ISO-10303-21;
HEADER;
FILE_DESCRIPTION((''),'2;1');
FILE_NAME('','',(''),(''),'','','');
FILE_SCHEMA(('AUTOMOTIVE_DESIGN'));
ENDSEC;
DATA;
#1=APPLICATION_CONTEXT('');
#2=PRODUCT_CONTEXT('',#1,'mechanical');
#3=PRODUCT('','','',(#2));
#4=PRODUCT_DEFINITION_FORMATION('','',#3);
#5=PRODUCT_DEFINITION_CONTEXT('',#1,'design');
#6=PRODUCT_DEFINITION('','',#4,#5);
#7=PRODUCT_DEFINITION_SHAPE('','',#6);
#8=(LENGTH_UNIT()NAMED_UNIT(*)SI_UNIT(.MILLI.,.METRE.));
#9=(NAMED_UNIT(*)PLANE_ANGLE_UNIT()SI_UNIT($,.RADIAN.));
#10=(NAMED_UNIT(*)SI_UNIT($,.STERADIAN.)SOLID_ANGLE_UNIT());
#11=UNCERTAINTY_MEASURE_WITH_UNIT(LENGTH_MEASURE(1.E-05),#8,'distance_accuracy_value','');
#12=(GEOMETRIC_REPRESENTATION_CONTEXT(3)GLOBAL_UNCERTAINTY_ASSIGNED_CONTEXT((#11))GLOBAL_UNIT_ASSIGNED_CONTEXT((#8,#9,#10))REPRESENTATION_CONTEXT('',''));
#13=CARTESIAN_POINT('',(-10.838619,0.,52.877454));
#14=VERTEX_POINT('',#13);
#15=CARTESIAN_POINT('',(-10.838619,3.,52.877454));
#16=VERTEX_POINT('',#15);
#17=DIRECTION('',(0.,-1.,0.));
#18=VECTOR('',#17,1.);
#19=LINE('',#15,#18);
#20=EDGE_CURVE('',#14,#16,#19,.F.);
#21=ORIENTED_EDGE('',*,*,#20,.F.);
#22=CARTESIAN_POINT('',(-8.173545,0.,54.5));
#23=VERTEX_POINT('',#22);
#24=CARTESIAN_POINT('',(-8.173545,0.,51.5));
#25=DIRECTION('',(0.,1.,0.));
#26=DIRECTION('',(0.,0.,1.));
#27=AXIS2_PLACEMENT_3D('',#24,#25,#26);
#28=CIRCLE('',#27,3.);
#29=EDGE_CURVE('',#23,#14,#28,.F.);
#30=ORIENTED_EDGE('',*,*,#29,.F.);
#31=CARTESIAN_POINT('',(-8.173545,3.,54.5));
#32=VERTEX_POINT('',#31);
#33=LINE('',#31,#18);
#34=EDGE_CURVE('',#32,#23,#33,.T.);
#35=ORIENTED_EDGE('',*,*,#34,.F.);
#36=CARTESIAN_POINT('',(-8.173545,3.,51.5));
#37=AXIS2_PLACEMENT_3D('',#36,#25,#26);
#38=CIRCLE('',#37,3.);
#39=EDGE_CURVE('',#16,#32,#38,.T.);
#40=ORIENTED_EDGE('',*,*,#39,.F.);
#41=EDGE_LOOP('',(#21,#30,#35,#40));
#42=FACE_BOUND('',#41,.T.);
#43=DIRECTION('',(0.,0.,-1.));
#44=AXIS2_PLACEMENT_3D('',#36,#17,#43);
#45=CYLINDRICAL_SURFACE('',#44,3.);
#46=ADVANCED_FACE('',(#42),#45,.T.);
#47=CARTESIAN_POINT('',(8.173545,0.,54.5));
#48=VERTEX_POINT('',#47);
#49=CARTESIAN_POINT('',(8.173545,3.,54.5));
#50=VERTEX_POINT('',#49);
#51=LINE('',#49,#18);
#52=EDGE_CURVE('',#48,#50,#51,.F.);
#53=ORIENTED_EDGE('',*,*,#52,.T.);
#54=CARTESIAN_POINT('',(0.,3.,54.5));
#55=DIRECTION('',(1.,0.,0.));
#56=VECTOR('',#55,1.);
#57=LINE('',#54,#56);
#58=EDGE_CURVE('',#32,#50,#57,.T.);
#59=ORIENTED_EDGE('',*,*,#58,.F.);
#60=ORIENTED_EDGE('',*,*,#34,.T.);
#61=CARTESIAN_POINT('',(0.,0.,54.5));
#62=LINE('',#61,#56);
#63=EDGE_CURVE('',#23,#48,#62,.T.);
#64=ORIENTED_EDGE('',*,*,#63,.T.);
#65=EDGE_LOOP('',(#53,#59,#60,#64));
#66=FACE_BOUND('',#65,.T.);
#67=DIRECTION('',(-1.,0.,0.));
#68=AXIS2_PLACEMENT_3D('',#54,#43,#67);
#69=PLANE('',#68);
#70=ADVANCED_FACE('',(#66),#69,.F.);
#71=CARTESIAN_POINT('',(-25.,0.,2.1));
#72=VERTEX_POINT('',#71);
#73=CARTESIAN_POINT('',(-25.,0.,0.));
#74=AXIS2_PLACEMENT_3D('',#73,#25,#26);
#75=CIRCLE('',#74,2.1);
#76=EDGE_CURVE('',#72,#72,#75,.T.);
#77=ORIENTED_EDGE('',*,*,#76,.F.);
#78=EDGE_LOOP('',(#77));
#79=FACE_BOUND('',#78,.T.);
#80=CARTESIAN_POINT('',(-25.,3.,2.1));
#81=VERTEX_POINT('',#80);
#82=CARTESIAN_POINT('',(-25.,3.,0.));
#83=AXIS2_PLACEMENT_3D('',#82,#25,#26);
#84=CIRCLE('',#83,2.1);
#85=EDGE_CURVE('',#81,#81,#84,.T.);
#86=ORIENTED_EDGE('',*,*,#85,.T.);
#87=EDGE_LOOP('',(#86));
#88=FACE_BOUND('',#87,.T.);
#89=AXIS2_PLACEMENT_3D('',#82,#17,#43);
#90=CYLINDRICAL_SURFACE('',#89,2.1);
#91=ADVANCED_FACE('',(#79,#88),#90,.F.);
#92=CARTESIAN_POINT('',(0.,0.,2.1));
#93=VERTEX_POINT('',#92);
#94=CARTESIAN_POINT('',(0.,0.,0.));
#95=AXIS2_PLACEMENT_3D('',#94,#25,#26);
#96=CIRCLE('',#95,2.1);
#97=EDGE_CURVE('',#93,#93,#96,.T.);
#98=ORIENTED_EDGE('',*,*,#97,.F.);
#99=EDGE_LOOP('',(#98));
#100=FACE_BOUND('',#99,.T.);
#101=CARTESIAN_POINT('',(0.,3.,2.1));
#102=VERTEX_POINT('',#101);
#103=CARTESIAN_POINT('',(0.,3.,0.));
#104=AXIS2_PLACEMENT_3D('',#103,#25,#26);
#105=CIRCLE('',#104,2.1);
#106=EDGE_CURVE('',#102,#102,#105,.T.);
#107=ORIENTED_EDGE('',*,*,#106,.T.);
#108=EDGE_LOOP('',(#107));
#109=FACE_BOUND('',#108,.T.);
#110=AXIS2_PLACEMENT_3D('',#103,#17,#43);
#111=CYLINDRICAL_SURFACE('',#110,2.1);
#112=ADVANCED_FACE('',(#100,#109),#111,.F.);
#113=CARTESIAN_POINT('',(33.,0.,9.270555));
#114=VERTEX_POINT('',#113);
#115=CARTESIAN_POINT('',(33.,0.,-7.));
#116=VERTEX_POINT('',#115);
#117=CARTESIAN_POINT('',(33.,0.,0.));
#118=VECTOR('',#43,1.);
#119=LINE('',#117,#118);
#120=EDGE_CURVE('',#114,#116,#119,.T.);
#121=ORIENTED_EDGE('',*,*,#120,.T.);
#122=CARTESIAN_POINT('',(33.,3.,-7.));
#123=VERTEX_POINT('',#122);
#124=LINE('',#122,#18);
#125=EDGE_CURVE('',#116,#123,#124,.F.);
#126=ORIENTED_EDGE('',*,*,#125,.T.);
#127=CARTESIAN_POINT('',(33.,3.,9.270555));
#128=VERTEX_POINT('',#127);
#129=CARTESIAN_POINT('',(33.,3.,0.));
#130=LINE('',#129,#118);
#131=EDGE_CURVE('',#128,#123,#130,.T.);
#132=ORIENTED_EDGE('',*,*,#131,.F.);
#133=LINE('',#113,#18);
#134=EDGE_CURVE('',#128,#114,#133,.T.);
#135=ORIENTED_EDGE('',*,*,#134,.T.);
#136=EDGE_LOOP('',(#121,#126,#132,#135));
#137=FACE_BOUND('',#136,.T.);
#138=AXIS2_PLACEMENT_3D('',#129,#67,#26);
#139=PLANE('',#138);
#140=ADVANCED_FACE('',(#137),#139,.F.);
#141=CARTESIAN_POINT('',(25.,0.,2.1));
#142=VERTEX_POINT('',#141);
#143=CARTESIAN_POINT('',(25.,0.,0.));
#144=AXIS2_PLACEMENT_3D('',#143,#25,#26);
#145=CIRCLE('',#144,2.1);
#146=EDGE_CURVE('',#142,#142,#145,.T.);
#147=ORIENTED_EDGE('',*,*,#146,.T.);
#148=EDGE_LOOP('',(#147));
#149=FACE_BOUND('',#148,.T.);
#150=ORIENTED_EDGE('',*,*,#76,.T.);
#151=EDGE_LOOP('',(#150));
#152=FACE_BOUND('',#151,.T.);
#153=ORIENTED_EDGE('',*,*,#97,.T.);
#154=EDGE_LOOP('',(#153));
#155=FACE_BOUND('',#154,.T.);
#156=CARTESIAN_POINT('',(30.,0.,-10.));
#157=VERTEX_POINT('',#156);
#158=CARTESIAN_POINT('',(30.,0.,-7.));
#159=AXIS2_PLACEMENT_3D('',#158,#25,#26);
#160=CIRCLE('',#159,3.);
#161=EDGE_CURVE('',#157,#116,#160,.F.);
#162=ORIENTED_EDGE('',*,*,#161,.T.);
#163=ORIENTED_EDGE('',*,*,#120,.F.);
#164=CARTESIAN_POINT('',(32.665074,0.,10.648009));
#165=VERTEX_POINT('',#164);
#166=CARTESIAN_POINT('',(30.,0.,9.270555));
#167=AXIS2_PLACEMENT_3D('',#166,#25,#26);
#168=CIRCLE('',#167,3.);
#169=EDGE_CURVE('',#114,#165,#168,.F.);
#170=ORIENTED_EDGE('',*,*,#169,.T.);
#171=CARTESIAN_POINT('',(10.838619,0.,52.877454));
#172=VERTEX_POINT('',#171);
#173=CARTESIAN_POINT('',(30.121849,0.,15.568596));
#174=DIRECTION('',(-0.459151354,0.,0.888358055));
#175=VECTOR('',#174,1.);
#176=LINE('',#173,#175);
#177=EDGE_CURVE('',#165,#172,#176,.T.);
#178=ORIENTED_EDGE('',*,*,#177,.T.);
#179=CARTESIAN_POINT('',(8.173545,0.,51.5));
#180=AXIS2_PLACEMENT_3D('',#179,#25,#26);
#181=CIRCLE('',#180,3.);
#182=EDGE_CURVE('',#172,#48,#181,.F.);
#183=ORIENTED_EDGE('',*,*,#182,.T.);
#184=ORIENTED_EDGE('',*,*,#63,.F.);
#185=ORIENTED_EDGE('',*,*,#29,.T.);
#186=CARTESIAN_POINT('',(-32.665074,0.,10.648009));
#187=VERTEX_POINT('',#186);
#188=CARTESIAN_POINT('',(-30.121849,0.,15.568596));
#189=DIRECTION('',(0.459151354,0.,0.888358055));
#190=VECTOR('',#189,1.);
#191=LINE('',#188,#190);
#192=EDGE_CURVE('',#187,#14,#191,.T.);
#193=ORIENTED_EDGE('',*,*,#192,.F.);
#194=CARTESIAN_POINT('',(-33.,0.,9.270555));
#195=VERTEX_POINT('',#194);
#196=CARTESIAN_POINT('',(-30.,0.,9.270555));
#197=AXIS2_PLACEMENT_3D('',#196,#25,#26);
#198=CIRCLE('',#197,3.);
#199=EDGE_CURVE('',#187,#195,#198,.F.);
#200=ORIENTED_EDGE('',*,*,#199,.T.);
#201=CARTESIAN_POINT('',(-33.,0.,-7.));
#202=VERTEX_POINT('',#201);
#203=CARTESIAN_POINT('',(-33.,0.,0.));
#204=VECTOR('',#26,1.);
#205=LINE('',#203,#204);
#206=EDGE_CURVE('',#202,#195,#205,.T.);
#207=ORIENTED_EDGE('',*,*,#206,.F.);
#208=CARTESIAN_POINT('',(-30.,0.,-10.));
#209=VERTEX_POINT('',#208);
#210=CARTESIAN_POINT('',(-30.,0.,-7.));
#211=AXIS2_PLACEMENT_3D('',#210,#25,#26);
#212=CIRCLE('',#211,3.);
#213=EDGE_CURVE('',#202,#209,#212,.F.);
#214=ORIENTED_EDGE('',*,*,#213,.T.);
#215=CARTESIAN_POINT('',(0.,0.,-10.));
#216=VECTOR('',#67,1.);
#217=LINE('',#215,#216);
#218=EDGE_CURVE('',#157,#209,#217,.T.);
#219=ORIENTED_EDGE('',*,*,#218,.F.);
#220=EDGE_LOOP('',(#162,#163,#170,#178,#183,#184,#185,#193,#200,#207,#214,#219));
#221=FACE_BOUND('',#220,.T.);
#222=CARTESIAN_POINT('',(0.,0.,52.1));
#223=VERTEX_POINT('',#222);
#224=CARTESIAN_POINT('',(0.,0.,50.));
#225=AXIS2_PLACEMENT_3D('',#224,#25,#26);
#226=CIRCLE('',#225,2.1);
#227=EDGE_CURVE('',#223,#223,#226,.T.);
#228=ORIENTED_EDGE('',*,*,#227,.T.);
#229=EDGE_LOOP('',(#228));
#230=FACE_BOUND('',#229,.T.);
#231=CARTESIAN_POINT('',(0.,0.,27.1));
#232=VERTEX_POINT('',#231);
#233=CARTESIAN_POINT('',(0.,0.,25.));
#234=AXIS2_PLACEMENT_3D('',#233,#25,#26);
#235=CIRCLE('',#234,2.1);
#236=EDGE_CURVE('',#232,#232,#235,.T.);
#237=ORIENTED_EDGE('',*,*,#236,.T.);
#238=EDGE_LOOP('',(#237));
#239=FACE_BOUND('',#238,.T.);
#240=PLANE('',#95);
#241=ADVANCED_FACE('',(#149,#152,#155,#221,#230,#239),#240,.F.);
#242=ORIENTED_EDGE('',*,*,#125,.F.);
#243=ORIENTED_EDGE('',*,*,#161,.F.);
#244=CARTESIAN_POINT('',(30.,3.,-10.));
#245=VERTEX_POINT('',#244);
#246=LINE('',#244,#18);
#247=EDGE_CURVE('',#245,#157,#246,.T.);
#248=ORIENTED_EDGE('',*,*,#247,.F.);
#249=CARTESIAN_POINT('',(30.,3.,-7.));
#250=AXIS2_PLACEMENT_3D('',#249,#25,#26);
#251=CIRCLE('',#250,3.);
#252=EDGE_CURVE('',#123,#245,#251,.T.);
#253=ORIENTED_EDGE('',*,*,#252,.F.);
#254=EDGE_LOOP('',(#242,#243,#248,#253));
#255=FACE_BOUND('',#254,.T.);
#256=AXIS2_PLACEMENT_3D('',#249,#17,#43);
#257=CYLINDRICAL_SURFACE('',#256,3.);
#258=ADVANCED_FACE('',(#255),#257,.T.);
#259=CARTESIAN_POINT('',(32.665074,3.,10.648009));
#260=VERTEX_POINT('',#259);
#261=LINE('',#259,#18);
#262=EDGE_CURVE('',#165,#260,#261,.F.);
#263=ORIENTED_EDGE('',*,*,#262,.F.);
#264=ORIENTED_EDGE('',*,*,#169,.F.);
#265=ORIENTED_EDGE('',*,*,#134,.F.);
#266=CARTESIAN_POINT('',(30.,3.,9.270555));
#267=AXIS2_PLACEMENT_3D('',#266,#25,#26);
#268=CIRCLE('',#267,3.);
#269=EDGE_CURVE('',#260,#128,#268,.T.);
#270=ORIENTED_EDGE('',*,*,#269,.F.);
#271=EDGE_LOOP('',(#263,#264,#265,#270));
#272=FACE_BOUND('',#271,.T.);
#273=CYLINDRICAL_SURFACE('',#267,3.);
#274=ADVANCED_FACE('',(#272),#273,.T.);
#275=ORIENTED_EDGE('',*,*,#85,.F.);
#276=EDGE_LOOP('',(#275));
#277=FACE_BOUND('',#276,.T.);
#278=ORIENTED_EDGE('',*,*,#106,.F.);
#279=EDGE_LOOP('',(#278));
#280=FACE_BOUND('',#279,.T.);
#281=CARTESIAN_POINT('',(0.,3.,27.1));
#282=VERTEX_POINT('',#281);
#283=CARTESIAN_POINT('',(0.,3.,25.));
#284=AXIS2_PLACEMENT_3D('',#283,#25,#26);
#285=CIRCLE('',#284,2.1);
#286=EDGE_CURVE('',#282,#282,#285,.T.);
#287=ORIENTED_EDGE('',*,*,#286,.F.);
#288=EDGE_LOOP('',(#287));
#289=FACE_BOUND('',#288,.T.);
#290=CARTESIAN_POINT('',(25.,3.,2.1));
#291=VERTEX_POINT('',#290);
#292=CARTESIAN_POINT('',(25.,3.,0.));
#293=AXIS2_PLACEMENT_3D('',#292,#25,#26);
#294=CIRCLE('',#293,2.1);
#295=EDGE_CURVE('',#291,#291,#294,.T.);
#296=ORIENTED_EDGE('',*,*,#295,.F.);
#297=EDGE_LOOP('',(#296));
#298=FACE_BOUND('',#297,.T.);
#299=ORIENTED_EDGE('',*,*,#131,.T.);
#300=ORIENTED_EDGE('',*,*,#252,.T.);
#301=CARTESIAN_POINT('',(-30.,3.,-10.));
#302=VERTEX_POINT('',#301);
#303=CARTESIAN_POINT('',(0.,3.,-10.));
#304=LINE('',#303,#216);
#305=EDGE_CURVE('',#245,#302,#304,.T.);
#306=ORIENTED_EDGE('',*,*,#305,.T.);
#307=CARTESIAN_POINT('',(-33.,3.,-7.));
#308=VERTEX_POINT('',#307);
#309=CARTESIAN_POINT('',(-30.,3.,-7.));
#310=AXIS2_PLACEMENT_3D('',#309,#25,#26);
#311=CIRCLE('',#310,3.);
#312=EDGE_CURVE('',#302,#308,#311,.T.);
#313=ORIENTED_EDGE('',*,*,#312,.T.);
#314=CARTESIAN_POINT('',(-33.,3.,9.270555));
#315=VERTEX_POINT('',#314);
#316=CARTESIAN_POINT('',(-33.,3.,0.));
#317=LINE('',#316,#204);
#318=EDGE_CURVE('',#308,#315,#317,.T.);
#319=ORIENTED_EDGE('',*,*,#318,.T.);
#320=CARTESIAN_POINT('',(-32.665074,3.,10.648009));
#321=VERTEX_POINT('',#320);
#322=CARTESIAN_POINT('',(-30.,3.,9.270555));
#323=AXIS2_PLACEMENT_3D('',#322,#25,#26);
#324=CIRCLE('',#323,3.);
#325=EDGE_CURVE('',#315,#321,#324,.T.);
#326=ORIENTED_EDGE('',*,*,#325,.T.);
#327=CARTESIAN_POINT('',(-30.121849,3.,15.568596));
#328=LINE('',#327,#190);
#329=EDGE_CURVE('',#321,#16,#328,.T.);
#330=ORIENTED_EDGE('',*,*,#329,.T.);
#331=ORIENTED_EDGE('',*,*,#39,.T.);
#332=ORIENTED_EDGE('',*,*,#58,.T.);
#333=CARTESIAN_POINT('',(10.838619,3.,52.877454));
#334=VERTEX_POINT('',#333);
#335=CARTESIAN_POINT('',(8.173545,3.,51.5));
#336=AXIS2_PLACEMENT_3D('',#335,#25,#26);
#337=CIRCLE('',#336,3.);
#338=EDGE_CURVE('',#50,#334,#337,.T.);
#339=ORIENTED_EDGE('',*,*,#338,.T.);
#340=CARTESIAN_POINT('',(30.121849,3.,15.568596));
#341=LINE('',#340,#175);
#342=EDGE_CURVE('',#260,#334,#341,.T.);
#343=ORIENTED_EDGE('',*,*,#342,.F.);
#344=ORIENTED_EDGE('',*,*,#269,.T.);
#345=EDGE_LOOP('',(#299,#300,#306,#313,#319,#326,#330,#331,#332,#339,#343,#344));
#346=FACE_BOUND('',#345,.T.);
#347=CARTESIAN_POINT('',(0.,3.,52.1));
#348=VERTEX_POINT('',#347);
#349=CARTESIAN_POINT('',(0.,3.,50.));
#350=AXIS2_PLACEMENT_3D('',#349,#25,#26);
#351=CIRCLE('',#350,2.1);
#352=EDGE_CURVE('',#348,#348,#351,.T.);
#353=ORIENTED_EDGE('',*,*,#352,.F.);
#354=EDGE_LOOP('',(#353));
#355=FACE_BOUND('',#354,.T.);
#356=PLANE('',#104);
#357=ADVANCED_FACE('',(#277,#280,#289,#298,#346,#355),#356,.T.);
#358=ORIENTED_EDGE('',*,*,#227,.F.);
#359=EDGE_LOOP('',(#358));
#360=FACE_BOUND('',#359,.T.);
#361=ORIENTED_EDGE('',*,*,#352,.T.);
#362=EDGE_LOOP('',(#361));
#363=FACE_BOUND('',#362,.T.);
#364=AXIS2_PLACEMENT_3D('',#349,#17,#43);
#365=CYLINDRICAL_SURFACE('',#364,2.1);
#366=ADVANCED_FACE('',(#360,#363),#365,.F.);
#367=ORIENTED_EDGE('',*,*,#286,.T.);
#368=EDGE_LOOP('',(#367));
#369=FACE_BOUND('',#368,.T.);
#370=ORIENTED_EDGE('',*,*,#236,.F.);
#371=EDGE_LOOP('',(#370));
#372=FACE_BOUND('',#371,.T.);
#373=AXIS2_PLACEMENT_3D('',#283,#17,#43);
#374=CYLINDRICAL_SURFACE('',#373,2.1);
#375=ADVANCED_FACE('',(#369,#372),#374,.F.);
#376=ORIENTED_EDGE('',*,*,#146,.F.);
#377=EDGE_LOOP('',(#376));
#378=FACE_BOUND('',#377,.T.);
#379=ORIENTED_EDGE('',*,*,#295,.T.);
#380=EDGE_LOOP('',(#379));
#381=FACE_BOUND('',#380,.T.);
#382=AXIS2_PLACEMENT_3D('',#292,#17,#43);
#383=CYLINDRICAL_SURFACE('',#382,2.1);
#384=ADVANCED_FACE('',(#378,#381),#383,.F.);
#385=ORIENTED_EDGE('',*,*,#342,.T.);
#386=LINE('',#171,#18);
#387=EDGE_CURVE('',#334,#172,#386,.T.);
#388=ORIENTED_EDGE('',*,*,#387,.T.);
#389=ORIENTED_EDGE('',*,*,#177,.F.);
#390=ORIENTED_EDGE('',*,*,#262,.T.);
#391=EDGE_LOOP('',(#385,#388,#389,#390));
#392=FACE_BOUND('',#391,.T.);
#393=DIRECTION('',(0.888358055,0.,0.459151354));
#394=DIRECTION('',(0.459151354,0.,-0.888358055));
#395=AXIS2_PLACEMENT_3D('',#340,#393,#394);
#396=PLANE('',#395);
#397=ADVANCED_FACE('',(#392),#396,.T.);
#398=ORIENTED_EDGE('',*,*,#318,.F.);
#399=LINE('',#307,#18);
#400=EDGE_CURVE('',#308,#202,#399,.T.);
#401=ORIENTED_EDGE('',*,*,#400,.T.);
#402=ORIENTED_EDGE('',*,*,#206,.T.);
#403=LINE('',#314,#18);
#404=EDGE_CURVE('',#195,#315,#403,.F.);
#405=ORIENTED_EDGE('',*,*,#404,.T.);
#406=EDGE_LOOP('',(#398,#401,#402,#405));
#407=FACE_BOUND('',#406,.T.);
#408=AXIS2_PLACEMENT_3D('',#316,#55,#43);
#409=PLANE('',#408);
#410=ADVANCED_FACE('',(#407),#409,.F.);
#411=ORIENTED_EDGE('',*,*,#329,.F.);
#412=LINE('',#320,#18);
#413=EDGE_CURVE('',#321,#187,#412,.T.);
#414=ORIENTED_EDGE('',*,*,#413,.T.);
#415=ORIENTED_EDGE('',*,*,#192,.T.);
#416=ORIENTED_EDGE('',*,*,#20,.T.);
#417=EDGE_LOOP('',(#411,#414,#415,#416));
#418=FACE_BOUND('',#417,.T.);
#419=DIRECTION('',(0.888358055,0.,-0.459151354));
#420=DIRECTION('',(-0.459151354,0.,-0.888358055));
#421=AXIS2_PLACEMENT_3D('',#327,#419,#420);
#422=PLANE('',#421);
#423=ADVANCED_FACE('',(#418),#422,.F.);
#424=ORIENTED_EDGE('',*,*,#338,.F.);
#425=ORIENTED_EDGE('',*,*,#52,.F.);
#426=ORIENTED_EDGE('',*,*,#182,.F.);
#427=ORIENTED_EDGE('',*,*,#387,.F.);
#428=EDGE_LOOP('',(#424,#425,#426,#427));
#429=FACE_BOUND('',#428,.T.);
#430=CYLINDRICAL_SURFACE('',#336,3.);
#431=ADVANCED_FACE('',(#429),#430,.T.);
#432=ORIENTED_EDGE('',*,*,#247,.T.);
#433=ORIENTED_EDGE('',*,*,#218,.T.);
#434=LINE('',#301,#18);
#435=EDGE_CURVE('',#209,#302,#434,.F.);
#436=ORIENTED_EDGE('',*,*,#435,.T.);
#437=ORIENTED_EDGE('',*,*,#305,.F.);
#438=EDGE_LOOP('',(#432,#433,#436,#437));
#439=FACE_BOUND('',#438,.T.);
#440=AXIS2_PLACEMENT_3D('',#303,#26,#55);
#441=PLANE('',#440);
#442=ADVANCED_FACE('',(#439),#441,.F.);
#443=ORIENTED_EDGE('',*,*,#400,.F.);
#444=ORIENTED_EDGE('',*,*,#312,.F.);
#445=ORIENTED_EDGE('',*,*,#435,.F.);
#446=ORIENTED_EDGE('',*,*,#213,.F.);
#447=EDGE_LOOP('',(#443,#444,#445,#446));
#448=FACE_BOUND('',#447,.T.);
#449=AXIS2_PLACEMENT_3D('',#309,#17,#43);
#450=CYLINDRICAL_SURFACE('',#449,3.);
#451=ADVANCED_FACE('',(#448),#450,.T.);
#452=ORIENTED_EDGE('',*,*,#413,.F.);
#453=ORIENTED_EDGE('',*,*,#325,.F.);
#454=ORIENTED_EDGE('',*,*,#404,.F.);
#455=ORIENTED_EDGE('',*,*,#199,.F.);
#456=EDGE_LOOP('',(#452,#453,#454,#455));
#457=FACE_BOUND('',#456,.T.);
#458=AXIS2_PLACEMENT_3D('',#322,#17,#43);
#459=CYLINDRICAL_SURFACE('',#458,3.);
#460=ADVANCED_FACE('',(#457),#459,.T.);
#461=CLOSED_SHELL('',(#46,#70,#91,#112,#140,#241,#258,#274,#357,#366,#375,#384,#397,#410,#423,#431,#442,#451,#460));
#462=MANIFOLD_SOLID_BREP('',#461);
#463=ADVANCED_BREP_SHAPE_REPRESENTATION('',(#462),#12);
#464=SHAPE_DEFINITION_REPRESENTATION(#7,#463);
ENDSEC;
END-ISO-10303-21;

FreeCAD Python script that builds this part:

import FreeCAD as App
import Part
import Sketcher

V = App.Vector
Q = App.Units.Quantity


def edges_at(feature, points):
    """Names of the edges that pass closest to the given points."""
    edges = feature.Shape.Edges
    near = lambda p: min(range(len(edges)), key=lambda i: edges[i].distToShape(Part.Vertex(*p))[0])
    return sorted({f"Edge{near(p) + 1}" for p in points})


def add_polygon(sketch, points):
    """Adds a closed chain of lines whose ends are joined by coincident constraints."""
    first, n = sketch.GeometryCount, len(points)
    for a, b in zip(points, points[1:] + points[:1]):
        sketch.addGeometry(Part.LineSegment(App.Vector(*a, 0), App.Vector(*b, 0)), False)
    for i in range(n):
        sketch.addConstraint(Sketcher.Constraint("Coincident", first + i, 2, first + (i + 1) % n, 1))

doc = App.newDocument("Part")
body = doc.addObject("PartDesign::Body", "Body")

sketch1 = body.newObject("Sketcher::SketchObject", "Sketch")
sketch1.AttachmentSupport = (doc.getObject("XZ_Plane"), [""])
sketch1.MapMode = "FlatFace"
add_polygon(sketch1, [(33, -10), (-33, -10), (-33, 10), (-10, 54.5), (10, 54.5), (33, 10)])
sketch1.addGeometry(Part.Circle(V(0, 50, 0), V(0, 0, 1), 2.1), False)
sketch1.addGeometry(Part.Circle(V(-25, 0, 0), V(0, 0, 1), 2.1), False)
sketch1.addGeometry(Part.Circle(V(0, 25, 0), V(0, 0, 1), 2.1), False)
sketch1.addGeometry(Part.Circle(V(0, 0, 0), V(0, 0, 1), 2.1), False)
sketch1.addGeometry(Part.Circle(V(25, 0, 0), V(0, 0, 1), 2.1), False)
sketch1.addConstraint([
    Sketcher.Constraint("Horizontal", 0),
    Sketcher.Constraint("Vertical", 1),
    Sketcher.Constraint("Horizontal", 3),
    Sketcher.Constraint("Vertical", 5),
    Sketcher.Constraint("Coincident", 9, 3, -1, 1),
    Sketcher.Constraint("Equal", 6, 7),
    Sketcher.Constraint("Equal", 7, 8),
    Sketcher.Constraint("Equal", 8, 9),
    Sketcher.Constraint("Equal", 9, 10),
    Sketcher.Constraint("Symmetric", 7, 3, 10, 3, -1, 1),
    Sketcher.Constraint("Symmetric", 0, 2, 4, 2, -1, 1),
    Sketcher.Constraint("PointOnObject", 6, 3, -2),
    Sketcher.Constraint("PointOnObject", 7, 3, -1),
    Sketcher.Constraint("PointOnObject", 8, 3, -2),
    Sketcher.Constraint("Horizontal", 1, 2, 4, 2),
    Sketcher.Constraint("Equal", 3, 1),
    Sketcher.Constraint("Equal", 2, 4),
    Sketcher.Constraint("Diameter", 6, Q("4.2 mm")),
    Sketcher.Constraint("DistanceX", 0, 2, 0, 1, Q("66 mm")),
    Sketcher.Constraint("DistanceX", 3, 1, 3, 2, Q("20 mm")),
    Sketcher.Constraint("DistanceY", -1, 1, 6, 3, Q("50 mm")),
    Sketcher.Constraint("DistanceX", 7, 3, -1, 1, Q("25 mm")),
    Sketcher.Constraint("DistanceY", -1, 1, 8, 3, Q("25 mm")),
    Sketcher.Constraint("DistanceY", -1, 1, 2, 2, Q("54.5 mm")),
])
pad1 = body.newObject("PartDesign::Pad", "Pad")
pad1.Profile = sketch1
pad1.Length = 3
pad1.Reversed = True
doc.recompute()

fillet = body.newObject("PartDesign::Fillet", "Fillet")
fillet.Base = (pad1, edges_at(pad1, [
    (10, 1.5, 54.5),
    (-10, 1.5, 54.5),
    (-33, 1.5, 10),
    (-33, 1.5, -10),
    (33, 1.5, -10),
    (33, 1.5, 10),
]))
fillet.Radius = 3

doc.recompute()
